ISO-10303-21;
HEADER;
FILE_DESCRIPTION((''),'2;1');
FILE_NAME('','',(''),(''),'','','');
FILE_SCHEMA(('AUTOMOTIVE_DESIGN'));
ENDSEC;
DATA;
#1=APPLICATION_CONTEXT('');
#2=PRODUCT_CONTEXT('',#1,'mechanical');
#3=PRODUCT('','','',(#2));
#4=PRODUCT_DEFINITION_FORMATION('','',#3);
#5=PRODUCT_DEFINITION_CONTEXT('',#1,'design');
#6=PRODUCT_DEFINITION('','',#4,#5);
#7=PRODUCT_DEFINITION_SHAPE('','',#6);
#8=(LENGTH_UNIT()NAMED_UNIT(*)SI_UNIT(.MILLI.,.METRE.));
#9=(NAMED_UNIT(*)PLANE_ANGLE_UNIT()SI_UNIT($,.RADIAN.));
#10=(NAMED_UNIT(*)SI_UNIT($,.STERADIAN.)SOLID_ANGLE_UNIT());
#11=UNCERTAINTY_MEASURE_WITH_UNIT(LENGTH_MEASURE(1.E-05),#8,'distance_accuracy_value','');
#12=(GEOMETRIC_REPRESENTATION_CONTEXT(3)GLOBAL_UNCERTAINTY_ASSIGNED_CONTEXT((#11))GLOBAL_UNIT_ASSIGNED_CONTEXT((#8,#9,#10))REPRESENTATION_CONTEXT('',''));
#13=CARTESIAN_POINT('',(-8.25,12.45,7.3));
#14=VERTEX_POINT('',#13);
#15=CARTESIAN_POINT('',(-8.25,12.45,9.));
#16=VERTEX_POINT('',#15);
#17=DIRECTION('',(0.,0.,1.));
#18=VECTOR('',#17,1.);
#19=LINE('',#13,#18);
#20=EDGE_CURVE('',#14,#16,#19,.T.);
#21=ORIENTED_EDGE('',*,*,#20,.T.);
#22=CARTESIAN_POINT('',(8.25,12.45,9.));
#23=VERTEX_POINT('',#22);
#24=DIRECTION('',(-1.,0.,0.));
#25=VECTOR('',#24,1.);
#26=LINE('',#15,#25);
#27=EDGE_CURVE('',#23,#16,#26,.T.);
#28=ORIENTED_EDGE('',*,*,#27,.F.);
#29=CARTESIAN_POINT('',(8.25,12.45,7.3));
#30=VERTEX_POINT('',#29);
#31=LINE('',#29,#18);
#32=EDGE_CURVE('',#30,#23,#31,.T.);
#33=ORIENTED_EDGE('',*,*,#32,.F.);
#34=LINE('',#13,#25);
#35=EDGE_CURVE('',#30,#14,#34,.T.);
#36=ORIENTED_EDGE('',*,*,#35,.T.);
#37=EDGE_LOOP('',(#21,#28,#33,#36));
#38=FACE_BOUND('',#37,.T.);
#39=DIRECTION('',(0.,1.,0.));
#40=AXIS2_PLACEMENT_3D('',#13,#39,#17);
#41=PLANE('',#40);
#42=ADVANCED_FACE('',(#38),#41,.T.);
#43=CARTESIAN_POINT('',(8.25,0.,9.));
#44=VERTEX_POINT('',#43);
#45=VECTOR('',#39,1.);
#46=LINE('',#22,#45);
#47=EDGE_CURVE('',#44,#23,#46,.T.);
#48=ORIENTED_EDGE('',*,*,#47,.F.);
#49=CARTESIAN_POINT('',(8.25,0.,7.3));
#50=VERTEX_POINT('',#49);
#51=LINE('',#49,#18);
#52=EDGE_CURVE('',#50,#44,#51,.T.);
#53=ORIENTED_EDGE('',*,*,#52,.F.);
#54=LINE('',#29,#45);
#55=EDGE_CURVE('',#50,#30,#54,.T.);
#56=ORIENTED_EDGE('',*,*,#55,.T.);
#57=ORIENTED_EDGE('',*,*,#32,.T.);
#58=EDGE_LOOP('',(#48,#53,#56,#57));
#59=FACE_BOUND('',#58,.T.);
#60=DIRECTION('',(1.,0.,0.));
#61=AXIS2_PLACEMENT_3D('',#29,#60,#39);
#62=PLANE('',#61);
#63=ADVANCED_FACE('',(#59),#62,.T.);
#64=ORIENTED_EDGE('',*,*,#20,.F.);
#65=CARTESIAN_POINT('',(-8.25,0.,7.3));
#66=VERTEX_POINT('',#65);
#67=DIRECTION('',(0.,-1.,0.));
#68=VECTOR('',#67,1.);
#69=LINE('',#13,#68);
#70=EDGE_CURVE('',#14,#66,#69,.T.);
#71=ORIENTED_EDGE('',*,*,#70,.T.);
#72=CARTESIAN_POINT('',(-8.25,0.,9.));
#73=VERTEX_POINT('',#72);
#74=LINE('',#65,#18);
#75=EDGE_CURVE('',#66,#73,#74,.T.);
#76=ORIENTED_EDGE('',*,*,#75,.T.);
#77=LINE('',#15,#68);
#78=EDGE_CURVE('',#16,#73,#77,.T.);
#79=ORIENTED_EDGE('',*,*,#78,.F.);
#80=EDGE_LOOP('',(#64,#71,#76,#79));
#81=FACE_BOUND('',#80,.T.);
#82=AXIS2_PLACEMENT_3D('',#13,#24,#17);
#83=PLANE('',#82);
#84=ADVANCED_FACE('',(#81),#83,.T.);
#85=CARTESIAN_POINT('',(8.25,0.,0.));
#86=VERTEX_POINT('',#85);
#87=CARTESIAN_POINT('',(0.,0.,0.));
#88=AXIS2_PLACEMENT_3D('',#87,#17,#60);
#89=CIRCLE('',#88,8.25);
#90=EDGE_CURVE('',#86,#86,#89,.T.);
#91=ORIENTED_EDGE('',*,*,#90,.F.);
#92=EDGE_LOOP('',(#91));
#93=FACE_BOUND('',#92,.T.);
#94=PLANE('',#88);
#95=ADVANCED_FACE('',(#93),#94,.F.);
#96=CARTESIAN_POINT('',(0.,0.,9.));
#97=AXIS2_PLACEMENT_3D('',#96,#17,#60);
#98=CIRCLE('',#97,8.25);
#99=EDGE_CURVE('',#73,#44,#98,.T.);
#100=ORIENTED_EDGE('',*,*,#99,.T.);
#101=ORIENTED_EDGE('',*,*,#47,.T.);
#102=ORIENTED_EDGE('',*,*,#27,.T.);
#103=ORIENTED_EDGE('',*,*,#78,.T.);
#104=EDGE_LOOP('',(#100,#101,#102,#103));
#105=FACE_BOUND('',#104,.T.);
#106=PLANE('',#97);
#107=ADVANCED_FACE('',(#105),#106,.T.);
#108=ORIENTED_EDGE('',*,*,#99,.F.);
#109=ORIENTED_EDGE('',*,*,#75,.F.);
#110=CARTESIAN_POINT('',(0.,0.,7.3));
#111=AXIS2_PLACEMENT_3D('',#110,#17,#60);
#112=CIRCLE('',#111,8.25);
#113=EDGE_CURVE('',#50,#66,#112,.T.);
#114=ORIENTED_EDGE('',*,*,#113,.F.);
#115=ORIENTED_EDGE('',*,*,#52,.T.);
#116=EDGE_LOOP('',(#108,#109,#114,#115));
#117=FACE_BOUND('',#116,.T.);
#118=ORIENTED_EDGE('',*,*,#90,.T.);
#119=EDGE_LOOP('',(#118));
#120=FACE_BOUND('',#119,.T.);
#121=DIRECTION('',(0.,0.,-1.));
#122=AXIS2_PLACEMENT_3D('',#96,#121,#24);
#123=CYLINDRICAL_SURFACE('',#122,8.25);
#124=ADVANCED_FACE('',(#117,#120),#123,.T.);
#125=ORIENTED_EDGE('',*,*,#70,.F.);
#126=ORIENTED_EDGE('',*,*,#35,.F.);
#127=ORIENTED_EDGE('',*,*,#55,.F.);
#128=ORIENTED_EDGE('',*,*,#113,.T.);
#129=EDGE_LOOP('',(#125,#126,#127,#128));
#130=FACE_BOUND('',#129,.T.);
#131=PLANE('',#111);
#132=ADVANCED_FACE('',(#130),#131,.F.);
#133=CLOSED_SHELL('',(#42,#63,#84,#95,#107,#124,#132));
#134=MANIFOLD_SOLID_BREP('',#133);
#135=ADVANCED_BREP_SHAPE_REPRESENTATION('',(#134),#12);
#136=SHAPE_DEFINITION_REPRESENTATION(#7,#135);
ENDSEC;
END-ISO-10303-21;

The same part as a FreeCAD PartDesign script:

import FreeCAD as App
import Part
import Sketcher
Q = App.Units.Quantity


def add_polygon(sketch, points):
    """Adds a closed chain of lines whose ends are joined by coincident constraints."""
    first, n = sketch.GeometryCount, len(points)
    for a, b in zip(points, points[1:] + points[:1]):
        sketch.addGeometry(Part.LineSegment(App.Vector(*a, 0), App.Vector(*b, 0)), False)
    for i in range(n):
        sketch.addConstraint(Sketcher.Constraint("Coincident", first + i, 2, first + (i + 1) % n, 1))

doc = App.newDocument("Part")
params = doc.addObject("Spreadsheet::Sheet", "Params")
for row, (alias, value) in enumerate([
    ("sketch1_diameter", "16.5 mm"),
    ("pad1_length", "9 mm"),
    ("sketch2_width", "16.5 mm"),
    ("sketch2_height", "12.45 mm"),
    ("pad2_length", "1.7 mm"),
], start=1):
    params.set(f"A{row}", alias)
    params.set(f"B{row}", "=" + value)
    params.setAlias(f"B{row}", alias)

body = doc.addObject("PartDesign::Body", "Body")

# Sketch on XY plane
sketch1 = body.newObject("Sketcher::SketchObject", "Sketch")
sketch1.AttachmentSupport = (doc.getObject("XY_Plane"), [""])
sketch1.MapMode = "FlatFace"
sketch1.addGeometry(Part.Circle(App.Vector(0, 0, 0), App.Vector(0, 0, 1), 8), False)
sketch1.addConstraint(Sketcher.Constraint("Coincident", 0, 3, -1, 1))
sketch1.addConstraint(Sketcher.Constraint("Diameter", 0, Q("16.5 mm")))
sketch1.setExpression("Constraints[1]", "Params.sketch1_diameter")
pad1 = body.newObject("PartDesign::Pad", "Pad")
pad1.Profile = sketch1
pad1.setExpression("Length", "Params.pad1_length")

# Sketch on XY plane
sketch2 = body.newObject("Sketcher::SketchObject", "Sketch001")
sketch2.AttachmentSupport = (doc.getObject("XY_Plane"), [""])
sketch2.MapMode = "FlatFace"
sketch2.AttachmentOffset = App.Placement(App.Vector(0, 0, 9), App.Rotation())
add_polygon(sketch2, [(-8, 12), (-8, 0), (8, 0), (8, 12)])  # lines 0-3
sketch2.addConstraint(Sketcher.Constraint("Vertical", 0))
sketch2.addConstraint(Sketcher.Constraint("Horizontal", 1))
sketch2.addConstraint(Sketcher.Constraint("Vertical", 2))
sketch2.addConstraint(Sketcher.Constraint("Horizontal", 3))
sketch2.addConstraint(Sketcher.Constraint("Symmetric", 0, 2, 1, 2, -1, 1))
sketch2.addConstraint(Sketcher.Constraint("DistanceX", 1, 1, 1, 2, Q("16.5 mm")))
sketch2.addConstraint(Sketcher.Constraint("DistanceY", 0, 2, 0, 1, Q("12.45 mm")))
sketch2.setExpression("Constraints[9]", "Params.sketch2_width")
sketch2.setExpression("Constraints[10]", "Params.sketch2_height")
pad2 = body.newObject("PartDesign::Pad", "Pad001")
pad2.Profile = sketch2
pad2.setExpression("Length", "Params.pad2_length")
pad2.Reversed = True

doc.recompute()
